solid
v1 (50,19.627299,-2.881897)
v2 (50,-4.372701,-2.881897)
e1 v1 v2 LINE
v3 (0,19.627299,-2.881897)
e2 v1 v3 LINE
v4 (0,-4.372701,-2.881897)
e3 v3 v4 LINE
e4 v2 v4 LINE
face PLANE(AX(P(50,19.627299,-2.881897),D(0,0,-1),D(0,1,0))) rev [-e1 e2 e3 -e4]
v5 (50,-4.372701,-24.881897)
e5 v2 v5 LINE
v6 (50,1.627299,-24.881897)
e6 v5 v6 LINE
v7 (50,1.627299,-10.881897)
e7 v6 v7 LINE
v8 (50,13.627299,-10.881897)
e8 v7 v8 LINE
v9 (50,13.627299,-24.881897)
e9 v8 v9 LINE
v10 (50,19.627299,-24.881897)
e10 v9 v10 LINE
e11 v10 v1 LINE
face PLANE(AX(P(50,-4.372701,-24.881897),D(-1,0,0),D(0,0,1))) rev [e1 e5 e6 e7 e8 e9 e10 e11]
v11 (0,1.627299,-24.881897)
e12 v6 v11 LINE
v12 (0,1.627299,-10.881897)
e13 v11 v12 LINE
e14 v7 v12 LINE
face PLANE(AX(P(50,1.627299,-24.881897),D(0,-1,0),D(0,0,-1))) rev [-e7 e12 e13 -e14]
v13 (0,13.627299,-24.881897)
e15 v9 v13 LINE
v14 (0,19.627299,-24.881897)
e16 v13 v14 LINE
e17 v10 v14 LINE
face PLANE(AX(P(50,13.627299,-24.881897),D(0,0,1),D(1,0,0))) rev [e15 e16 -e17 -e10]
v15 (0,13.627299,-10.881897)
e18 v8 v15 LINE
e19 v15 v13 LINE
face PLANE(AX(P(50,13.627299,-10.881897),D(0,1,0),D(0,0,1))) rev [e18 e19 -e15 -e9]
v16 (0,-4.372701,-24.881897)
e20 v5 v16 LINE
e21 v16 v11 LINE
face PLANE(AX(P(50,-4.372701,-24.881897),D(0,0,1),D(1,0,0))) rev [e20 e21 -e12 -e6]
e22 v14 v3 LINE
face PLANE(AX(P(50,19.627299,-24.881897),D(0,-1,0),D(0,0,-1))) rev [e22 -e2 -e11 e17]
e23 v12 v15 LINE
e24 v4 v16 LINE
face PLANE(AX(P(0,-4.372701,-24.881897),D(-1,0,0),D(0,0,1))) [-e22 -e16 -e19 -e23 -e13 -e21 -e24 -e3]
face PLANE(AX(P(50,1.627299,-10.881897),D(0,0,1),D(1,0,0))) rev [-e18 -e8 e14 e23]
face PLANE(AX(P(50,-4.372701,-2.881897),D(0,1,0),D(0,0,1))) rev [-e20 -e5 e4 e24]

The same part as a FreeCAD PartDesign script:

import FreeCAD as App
import Part
import Sketcher
Q = App.Units.Quantity


def add_polygon(sketch, points):
    """Adds a closed chain of lines whose ends are joined by coincident constraints."""
    first, n = sketch.GeometryCount, len(points)
    for a, b in zip(points, points[1:] + points[:1]):
        sketch.addGeometry(Part.LineSegment(App.Vector(*a, 0), App.Vector(*b, 0)), False)
    for i in range(n):
        sketch.addConstraint(Sketcher.Constraint("Coincident", first + i, 2, first + (i + 1) % n, 1))

doc = App.newDocument("Part")
params = doc.addObject("Spreadsheet::Sheet", "Params")
for row, (alias, value) in enumerate([
    ("sketch1_width", "24 mm"),
    ("sketch1_width2", "6 mm"),
    ("sketch1_height", "22 mm"),
    ("sketch1_height2", "14 mm"),
    ("pad1_length", "50 mm"),
], start=1):
    params.set(f"A{row}", alias)
    params.set(f"B{row}", "=" + value)
    params.setAlias(f"B{row}", alias)

body = doc.addObject("PartDesign::Body", "Body")

sketch1 = body.newObject("Sketcher::SketchObject", "Sketch")
sketch1.AttachmentSupport = (doc.getObject("YZ_Plane"), [""])
sketch1.MapMode = "FlatFace"
add_polygon(sketch1, [(20, -25), (20, -3), (-4, -3), (-4, -25), (2, -25), (2, -11), (14, -11), (14, -25)])
sketch1.addConstraint([
    Sketcher.Constraint("Vertical", 0),
    Sketcher.Constraint("Horizontal", 1),
    Sketcher.Constraint("Vertical", 2),
    Sketcher.Constraint("Horizontal", 3),
    Sketcher.Constraint("Vertical", 4),
    Sketcher.Constraint("Horizontal", 5),
    Sketcher.Constraint("Vertical", 6),
    Sketcher.Constraint("Horizontal", 7),
    Sketcher.Constraint("Horizontal", 3, 2, 6, 2),
    Sketcher.Constraint("Equal", 3, 7),
    Sketcher.Constraint("DistanceX", 1, 2, 1, 1, Q("24 mm")),
    Sketcher.Constraint("DistanceX", 3, 1, 3, 2, Q("6 mm")),
    Sketcher.Constraint("DistanceY", 0, 1, 0, 2, Q("22 mm")),
    Sketcher.Constraint("DistanceY", 4, 1, 4, 2, Q("14 mm")),
    Sketcher.Constraint("DistanceX", -1, 1, 0, 2, Q("19.627299 mm")),
    Sketcher.Constraint("DistanceY", 0, 2, -1, 1, Q("2.881897 mm")),
])
sketch1.setExpression("Constraints[18]", "Params.sketch1_width")
sketch1.setExpression("Constraints[19]", "Params.sketch1_width2")
sketch1.setExpression("Constraints[20]", "Params.sketch1_height")
sketch1.setExpression("Constraints[21]", "Params.sketch1_height2")
pad1 = body.newObject("PartDesign::Pad", "Pad")
pad1.Profile = sketch1
pad1.setExpression("Length", "Params.pad1_length")

doc.recompute()
